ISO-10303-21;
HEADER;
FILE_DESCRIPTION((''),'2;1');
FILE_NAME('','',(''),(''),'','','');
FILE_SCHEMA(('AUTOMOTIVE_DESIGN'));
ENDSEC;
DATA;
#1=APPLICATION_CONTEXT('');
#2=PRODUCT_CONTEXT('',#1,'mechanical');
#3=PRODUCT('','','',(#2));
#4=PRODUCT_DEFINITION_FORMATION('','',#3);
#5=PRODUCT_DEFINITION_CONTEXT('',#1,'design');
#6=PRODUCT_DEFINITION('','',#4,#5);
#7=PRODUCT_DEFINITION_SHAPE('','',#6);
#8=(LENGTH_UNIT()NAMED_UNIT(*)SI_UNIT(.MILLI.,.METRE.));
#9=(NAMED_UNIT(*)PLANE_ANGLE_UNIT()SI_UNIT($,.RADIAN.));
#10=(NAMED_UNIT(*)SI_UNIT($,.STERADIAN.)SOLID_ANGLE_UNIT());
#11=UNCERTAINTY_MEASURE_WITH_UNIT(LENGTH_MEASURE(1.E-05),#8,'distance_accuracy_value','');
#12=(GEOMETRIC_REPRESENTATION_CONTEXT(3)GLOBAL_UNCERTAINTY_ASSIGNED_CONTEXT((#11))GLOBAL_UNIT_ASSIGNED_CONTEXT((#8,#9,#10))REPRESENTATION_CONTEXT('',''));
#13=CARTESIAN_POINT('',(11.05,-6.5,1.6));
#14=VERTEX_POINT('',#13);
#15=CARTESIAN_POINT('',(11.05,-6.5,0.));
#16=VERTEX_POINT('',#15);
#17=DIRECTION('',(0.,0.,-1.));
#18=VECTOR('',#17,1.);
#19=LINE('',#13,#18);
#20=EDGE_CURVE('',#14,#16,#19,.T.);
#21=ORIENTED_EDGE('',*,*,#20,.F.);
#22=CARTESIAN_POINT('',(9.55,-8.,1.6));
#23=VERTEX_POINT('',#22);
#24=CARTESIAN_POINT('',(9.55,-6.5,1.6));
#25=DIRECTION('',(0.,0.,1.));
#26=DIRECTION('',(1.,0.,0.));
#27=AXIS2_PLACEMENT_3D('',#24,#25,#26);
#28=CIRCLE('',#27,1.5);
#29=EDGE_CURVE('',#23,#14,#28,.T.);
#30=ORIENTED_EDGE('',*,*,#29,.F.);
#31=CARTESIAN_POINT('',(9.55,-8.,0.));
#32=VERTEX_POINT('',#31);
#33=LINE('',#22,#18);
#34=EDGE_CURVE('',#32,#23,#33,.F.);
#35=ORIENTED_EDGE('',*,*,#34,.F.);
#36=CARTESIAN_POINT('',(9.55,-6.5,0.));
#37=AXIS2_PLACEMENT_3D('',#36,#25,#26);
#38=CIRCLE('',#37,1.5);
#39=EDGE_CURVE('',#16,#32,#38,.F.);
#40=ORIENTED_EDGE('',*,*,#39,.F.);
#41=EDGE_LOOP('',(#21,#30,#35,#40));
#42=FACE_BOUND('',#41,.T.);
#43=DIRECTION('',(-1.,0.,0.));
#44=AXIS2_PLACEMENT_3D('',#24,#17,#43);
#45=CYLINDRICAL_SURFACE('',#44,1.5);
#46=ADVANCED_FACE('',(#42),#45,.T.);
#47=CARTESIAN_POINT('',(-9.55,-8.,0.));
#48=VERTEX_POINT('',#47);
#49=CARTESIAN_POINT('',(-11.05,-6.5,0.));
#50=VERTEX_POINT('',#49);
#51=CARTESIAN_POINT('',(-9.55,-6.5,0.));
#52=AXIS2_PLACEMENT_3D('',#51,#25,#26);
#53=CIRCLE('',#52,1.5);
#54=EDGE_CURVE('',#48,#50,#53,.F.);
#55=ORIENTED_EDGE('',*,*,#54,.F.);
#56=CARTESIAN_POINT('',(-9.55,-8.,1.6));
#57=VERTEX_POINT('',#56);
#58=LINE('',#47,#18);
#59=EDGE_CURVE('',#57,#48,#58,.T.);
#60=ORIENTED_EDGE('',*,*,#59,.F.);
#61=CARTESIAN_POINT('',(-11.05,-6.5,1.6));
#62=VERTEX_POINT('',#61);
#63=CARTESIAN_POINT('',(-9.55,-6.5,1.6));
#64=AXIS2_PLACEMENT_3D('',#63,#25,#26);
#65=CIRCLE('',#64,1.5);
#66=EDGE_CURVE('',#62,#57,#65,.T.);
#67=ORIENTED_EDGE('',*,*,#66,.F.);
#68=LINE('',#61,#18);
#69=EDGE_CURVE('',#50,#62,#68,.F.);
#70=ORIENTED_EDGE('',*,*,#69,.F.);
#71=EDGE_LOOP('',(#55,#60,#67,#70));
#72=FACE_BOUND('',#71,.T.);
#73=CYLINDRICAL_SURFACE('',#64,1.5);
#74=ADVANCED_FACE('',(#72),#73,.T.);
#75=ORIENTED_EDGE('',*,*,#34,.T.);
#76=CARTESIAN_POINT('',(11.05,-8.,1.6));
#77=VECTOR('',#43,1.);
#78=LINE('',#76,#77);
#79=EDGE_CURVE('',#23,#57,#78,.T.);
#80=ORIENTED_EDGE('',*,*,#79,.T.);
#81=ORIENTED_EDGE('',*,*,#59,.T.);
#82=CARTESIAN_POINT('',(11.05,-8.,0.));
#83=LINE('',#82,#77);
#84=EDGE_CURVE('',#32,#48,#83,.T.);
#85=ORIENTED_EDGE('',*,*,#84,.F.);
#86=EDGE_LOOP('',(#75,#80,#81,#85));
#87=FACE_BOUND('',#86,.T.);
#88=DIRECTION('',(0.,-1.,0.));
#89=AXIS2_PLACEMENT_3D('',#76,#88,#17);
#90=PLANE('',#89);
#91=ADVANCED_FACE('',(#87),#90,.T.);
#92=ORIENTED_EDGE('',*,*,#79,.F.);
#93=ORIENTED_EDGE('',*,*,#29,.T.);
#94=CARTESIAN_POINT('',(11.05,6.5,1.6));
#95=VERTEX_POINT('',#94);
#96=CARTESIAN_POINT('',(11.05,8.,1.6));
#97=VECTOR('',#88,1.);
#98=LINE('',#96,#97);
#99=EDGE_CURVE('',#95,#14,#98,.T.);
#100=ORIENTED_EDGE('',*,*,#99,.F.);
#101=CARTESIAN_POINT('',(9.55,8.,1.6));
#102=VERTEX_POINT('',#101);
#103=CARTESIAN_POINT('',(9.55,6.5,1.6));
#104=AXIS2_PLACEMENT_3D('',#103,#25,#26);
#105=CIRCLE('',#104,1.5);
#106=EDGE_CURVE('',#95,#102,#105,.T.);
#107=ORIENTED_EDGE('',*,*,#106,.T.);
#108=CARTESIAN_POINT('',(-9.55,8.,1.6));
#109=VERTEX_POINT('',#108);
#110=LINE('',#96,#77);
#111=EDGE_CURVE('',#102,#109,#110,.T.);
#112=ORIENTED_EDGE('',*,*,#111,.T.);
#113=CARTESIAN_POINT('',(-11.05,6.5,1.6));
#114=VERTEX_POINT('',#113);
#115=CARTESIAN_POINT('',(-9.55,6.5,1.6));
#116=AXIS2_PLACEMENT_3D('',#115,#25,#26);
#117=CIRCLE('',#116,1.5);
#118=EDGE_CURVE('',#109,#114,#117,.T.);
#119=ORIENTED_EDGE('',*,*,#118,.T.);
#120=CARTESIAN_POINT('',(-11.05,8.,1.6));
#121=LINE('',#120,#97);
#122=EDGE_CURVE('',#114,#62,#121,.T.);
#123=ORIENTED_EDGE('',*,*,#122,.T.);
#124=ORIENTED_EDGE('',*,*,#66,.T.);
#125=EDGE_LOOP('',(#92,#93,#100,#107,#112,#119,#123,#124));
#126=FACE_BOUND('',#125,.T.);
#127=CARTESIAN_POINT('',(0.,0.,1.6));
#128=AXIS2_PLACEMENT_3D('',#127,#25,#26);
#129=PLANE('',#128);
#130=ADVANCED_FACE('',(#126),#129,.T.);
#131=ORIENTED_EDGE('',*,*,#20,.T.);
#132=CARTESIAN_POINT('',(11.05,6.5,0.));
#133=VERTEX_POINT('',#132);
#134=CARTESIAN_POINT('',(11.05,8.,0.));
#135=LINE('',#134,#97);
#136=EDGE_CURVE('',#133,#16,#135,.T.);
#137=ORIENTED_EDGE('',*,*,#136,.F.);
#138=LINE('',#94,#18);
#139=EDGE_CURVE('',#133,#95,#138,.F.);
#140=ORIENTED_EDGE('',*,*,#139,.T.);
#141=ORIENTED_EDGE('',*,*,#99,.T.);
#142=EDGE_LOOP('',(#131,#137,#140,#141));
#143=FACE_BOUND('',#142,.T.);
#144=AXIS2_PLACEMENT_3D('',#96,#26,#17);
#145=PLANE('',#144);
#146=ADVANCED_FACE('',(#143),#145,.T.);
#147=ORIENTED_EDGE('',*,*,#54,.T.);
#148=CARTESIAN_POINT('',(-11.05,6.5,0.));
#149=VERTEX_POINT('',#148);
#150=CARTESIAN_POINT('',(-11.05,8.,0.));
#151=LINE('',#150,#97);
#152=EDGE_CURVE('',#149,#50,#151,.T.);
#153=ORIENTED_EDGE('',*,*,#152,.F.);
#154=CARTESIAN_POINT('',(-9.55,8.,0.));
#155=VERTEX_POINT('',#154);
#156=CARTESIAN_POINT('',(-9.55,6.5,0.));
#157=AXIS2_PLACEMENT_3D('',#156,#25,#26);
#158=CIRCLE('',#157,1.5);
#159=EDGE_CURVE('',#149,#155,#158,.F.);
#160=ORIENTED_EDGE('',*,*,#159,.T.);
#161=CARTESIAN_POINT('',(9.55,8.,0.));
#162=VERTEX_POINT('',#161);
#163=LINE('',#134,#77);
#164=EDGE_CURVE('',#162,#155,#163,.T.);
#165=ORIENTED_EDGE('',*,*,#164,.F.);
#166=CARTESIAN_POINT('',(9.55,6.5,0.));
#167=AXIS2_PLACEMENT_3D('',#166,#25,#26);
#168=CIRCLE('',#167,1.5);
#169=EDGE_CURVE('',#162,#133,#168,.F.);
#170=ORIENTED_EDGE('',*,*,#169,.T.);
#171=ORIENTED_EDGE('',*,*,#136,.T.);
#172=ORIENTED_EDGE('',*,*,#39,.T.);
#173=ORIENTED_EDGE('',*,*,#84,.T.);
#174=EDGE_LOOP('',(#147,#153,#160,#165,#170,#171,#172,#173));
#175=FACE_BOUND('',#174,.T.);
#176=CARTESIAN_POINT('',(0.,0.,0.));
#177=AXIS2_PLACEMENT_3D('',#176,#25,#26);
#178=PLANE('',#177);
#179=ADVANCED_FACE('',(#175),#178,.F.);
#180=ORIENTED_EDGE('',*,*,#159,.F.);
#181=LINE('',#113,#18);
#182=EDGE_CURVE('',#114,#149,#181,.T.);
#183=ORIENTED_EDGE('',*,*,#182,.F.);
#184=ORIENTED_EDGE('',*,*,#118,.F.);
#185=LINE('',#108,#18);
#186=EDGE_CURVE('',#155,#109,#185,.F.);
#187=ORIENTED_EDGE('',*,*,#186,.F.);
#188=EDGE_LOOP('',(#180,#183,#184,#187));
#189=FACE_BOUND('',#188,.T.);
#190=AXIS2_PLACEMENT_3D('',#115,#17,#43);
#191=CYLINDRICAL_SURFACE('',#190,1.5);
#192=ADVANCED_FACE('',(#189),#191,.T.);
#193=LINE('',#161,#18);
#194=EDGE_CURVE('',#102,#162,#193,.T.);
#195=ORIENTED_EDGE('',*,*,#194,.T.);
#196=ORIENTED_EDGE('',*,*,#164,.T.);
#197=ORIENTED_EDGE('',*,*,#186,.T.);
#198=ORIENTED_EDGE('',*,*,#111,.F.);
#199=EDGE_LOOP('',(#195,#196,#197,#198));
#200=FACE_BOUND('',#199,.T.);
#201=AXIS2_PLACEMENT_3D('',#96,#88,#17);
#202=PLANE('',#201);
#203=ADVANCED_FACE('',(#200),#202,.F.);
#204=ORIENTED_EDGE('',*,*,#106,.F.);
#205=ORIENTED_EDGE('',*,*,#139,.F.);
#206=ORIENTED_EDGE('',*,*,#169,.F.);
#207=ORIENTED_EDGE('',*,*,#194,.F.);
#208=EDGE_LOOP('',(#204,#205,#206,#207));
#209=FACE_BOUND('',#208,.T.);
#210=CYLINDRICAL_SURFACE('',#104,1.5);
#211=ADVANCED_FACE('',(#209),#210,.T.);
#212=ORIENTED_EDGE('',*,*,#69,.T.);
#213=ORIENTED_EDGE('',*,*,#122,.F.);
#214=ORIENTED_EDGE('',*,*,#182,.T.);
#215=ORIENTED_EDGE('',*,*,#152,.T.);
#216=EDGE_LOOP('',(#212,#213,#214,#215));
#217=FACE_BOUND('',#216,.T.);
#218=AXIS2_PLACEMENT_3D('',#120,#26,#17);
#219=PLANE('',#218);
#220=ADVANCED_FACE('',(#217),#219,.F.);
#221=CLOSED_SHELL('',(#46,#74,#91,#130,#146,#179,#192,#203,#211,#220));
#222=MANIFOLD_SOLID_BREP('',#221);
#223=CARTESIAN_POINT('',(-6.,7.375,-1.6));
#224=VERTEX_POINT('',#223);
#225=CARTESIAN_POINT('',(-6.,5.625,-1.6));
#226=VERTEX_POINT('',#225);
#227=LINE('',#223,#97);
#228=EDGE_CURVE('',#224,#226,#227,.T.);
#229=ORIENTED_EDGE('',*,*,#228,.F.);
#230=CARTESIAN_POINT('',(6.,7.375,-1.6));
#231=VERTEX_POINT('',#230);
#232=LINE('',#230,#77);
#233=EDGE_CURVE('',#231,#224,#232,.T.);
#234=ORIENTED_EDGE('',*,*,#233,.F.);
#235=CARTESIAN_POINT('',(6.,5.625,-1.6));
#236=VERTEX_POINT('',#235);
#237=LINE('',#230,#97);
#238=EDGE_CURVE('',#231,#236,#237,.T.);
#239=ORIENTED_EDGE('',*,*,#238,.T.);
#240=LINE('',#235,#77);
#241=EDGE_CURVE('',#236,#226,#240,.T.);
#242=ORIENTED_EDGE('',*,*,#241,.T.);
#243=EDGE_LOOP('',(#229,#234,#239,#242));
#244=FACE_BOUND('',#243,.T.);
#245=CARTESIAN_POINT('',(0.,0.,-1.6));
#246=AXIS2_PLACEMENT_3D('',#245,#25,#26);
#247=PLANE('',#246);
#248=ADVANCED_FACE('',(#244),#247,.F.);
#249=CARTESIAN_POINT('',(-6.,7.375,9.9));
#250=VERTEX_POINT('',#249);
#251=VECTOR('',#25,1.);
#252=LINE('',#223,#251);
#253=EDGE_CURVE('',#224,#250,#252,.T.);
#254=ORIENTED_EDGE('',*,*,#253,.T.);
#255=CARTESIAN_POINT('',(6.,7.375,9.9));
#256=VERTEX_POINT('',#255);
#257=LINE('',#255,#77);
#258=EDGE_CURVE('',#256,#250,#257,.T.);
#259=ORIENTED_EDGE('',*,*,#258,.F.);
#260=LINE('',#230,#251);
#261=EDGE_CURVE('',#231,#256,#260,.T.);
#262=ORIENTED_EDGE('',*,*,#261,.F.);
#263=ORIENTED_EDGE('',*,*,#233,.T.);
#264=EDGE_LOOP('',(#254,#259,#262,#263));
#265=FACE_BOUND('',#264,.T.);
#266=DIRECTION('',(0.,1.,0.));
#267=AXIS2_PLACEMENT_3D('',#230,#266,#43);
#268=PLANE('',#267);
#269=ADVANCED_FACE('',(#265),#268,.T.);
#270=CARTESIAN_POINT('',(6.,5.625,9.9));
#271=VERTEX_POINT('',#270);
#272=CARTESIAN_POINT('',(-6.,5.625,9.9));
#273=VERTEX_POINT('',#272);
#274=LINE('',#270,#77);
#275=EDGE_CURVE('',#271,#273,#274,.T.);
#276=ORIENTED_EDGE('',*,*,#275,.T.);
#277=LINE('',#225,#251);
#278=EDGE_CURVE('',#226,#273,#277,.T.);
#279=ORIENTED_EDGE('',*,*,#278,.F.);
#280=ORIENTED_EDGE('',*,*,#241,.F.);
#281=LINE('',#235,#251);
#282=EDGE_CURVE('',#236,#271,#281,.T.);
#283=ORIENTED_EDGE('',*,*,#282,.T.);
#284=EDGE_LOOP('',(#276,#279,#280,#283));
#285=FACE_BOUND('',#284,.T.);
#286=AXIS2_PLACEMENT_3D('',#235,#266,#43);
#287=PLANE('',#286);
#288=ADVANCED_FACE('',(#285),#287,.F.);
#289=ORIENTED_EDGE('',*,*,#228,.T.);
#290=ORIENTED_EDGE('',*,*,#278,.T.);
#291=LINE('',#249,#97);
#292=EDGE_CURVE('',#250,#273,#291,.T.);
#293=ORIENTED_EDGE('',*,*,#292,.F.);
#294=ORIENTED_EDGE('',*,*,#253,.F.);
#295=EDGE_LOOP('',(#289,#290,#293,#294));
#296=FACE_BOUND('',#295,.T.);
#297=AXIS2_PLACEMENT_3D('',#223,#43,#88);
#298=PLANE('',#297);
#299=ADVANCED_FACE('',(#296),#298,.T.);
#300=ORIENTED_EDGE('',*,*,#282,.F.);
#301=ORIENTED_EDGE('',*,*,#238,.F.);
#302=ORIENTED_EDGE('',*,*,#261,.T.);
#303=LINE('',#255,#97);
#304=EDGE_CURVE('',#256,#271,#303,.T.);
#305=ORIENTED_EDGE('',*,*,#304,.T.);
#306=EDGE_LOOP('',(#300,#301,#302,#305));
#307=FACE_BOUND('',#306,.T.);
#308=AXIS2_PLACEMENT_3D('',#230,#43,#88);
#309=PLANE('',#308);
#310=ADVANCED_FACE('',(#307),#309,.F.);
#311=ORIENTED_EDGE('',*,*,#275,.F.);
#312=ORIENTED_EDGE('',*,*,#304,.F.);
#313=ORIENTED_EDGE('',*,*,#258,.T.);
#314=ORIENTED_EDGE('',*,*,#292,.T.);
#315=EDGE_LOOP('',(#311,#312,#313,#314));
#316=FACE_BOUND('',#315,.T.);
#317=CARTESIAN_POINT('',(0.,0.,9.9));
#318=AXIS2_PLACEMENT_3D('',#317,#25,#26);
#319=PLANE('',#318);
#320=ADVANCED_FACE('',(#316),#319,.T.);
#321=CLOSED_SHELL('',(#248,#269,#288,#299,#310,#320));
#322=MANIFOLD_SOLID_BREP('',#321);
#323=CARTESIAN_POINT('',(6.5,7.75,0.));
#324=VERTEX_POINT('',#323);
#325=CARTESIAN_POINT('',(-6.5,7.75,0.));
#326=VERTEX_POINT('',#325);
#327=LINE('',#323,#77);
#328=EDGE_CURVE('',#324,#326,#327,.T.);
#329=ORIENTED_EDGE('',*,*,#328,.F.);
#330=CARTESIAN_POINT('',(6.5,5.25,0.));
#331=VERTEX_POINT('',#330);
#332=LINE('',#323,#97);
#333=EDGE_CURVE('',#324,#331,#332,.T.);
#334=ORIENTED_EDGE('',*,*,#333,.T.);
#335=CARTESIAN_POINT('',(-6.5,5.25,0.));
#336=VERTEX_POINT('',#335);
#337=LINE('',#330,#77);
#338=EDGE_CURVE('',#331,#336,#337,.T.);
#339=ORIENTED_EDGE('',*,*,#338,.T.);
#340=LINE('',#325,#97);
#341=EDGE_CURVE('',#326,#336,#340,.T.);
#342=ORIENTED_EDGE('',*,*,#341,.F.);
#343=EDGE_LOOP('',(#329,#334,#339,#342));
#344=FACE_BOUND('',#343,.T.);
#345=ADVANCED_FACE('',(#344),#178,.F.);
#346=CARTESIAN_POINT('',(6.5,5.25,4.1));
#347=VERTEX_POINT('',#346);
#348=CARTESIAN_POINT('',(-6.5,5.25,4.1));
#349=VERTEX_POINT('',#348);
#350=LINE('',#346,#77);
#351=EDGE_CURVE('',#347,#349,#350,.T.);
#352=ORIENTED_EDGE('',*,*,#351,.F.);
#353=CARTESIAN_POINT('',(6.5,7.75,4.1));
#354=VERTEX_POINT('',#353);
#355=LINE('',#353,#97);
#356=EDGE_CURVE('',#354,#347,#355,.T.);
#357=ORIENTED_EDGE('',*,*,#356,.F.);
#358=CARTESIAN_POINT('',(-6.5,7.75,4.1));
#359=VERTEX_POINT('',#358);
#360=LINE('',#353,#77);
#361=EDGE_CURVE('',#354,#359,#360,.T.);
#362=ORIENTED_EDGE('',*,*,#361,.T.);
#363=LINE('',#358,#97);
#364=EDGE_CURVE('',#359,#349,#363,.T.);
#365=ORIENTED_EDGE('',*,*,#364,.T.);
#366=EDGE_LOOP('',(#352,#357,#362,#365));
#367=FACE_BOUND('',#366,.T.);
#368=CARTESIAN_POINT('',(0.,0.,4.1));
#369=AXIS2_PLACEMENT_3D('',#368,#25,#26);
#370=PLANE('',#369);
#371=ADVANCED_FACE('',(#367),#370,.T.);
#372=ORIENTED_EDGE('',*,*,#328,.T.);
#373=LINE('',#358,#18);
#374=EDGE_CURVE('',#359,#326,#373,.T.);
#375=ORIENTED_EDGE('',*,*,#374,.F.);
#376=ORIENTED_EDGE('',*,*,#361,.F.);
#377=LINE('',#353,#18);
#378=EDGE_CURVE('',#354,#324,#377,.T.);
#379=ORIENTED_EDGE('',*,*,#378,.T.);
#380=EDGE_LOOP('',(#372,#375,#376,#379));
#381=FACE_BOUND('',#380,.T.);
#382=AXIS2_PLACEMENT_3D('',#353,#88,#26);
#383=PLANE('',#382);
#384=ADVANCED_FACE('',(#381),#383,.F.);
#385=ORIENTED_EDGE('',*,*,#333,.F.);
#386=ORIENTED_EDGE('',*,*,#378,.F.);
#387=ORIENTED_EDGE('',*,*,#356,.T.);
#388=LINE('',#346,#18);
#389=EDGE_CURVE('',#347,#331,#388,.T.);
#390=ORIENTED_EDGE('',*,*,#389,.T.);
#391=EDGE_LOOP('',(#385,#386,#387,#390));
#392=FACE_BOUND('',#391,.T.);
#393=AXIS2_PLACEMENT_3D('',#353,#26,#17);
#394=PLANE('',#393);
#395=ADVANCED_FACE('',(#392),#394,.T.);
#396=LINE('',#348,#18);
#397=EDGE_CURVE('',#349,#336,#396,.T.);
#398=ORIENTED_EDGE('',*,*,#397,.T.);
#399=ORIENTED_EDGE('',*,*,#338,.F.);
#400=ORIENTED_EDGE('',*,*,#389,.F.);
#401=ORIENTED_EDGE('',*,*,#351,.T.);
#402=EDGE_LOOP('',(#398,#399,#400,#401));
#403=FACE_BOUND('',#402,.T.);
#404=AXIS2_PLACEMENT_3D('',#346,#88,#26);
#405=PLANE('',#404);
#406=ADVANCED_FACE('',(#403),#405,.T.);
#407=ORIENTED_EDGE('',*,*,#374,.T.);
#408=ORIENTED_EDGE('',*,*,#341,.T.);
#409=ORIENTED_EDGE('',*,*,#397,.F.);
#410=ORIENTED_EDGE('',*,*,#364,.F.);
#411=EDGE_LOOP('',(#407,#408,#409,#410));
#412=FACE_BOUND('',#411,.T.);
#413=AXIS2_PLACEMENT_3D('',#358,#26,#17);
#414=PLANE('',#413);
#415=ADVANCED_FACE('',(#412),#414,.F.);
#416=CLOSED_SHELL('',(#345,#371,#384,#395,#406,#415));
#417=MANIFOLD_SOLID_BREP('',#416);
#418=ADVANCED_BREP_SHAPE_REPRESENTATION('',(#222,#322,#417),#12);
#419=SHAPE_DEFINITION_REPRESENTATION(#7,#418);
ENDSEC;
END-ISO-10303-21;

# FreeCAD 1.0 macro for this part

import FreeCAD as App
import Part
import Sketcher
Q = App.Units.Quantity


def edges_at(feature, points):
    """Names of the edges that pass closest to the given points."""
    edges = feature.Shape.Edges
    near = lambda p: min(range(len(edges)), key=lambda i: edges[i].distToShape(Part.Vertex(*p))[0])
    return sorted({f"Edge{near(p) + 1}" for p in points})

doc = App.newDocument("Part")
params = doc.addObject("Spreadsheet::Sheet", "Params")
for row, (alias, value) in enumerate([
    ("sketch1_height", "16 mm"),
    ("sketch1_width", "22.1 mm"),
    ("pad1_length", "1.6 mm"),
    ("fillet_radius", "1.5 mm"),
    ("sketch2_width", "12 mm"),
    ("sketch2_height", "1.75 mm"),
    ("pad2_length", "9.9 mm"),
    ("pad2_length2", "1.6 mm"),
    ("sketch3_width", "13 mm"),
    ("sketch3_height", "2.5 mm"),
    ("pad3_length", "4.1 mm"),
], start=1):
    params.set(f"A{row}", alias)
    params.set(f"B{row}", "=" + value)
    params.setAlias(f"B{row}", alias)

body = doc.addObject("PartDesign::Body", "Body")

# Sketch on XY plane
sketch1 = body.newObject("Sketcher::SketchObject", "Sketch")
sketch1.AttachmentSupport = (doc.getObject("XY_Plane"), [""])
sketch1.MapMode = "FlatFace"
sketch1.addGeometry([
    Part.LineSegment(App.Vector(-11, 8, 0), App.Vector(-11, -8, 0)),
    Part.LineSegment(App.Vector(-11, -8, 0), App.Vector(11, -8, 0)),
    Part.LineSegment(App.Vector(11, -8, 0), App.Vector(11, 8, 0)),
    Part.LineSegment(App.Vector(11, 8, 0), App.Vector(-11, 8, 0)),
], False)
sketch1.addConstraint([
    Sketcher.Constraint("Coincident", 0, 2, 1, 1),
    Sketcher.Constraint("Coincident", 1, 2, 2, 1),
    Sketcher.Constraint("Coincident", 2, 2, 3, 1),
    Sketcher.Constraint("Coincident", 3, 2, 0, 1),
    Sketcher.Constraint("Vertical", 0),
    Sketcher.Constraint("Horizontal", 1),
    Sketcher.Constraint("Vertical", 2),
    Sketcher.Constraint("Horizontal", 3),
    Sketcher.Constraint("Symmetric", 0, 2, 2, 2, -1, 1),
    Sketcher.Constraint("DistanceY", 0, 2, 0, 1, Q("16 mm")),
    Sketcher.Constraint("DistanceX", 1, 1, 1, 2, Q("22.1 mm")),
])
sketch1.setExpression("Constraints[9]", "Params.sketch1_height")
sketch1.setExpression("Constraints[10]", "Params.sketch1_width")
pad1 = body.newObject("PartDesign::Pad", "Pad")
pad1.Profile = sketch1
pad1.setExpression("Length", "Params.pad1_length")
doc.recompute()

fillet = body.newObject("PartDesign::Fillet", "Fillet")
fillet.Base = (pad1, edges_at(pad1, [
    (11.05, 8, 0.8),
    (11.05, -8, 0.8),
    (-11.05, -8, 0.8),
    (-11.05, 8, 0.8),
]))
fillet.setExpression("Radius", "Params.fillet_radius")
body2 = doc.addObject("PartDesign::Body", "Body001")

# Sketch on XY plane
sketch2 = body2.newObject("Sketcher::SketchObject", "Sketch001")
sketch2.AttachmentSupport = (doc.getObject("XY_Plane001"), [""])
sketch2.MapMode = "FlatFace"
sketch2.addGeometry([
    Part.LineSegment(App.Vector(-6, 7.4, 0), App.Vector(-6, 5.6, 0)),
    Part.LineSegment(App.Vector(-6, 5.6, 0), App.Vector(6, 5.6, 0)),
    Part.LineSegment(App.Vector(6, 5.6, 0), App.Vector(6, 7.4, 0)),
    Part.LineSegment(App.Vector(6, 7.4, 0), App.Vector(-6, 7.4, 0)),
], False)
sketch2.addConstraint([
    Sketcher.Constraint("Coincident", 0, 2, 1, 1),
    Sketcher.Constraint("Coincident", 1, 2, 2, 1),
    Sketcher.Constraint("Coincident", 2, 2, 3, 1),
    Sketcher.Constraint("Coincident", 3, 2, 0, 1),
    Sketcher.Constraint("Vertical", 0),
    Sketcher.Constraint("Horizontal", 1),
    Sketcher.Constraint("Vertical", 2),
    Sketcher.Constraint("Horizontal", 3),
    Sketcher.Constraint("DistanceX", 1, 1, 1, 2, Q("12 mm")),
    Sketcher.Constraint("DistanceX", 0, 2, -1, 1, Q("6 mm")),
    Sketcher.Constraint("DistanceY", 0, 2, 0, 1, Q("1.75 mm")),
    Sketcher.Constraint("DistanceY", -1, 1, 0, 2, Q("5.625 mm")),
])
sketch2.setExpression("Constraints[8]", "Params.sketch2_width")
sketch2.setExpression("Constraints[10]", "Params.sketch2_height")
pad2 = body2.newObject("PartDesign::Pad", "Pad001")
pad2.Profile = sketch2
pad2.Type = "TwoLengths"
pad2.setExpression("Length", "Params.pad2_length")
pad2.setExpression("Length2", "Params.pad2_length2")
body3 = doc.addObject("PartDesign::Body", "Body002")

# Sketch on XY plane
sketch3 = body3.newObject("Sketcher::SketchObject", "Sketch002")
sketch3.AttachmentSupport = (doc.getObject("XY_Plane002"), [""])
sketch3.MapMode = "FlatFace"
sketch3.addGeometry([
    Part.LineSegment(App.Vector(-6.5, 7.8, 0), App.Vector(-6.5, 5.2, 0)),
    Part.LineSegment(App.Vector(-6.5, 5.2, 0), App.Vector(6.5, 5.2, 0)),
    Part.LineSegment(App.Vector(6.5, 5.2, 0), App.Vector(6.5, 7.8, 0)),
    Part.LineSegment(App.Vector(6.5, 7.8, 0), App.Vector(-6.5, 7.8, 0)),
], False)
sketch3.addConstraint([
    Sketcher.Constraint("Coincident", 0, 2, 1, 1),
    Sketcher.Constraint("Coincident", 1, 2, 2, 1),
    Sketcher.Constraint("Coincident", 2, 2, 3, 1),
    Sketcher.Constraint("Coincident", 3, 2, 0, 1),
    Sketcher.Constraint("Vertical", 0),
    Sketcher.Constraint("Horizontal", 1),
    Sketcher.Constraint("Vertical", 2),
    Sketcher.Constraint("Horizontal", 3),
    Sketcher.Constraint("DistanceX", 1, 1, 1, 2, Q("13 mm")),
    Sketcher.Constraint("DistanceY", 0, 2, 0, 1, Q("2.5 mm")),
    Sketcher.Constraint("DistanceX", 0, 2, -1, 1, Q("6.5 mm")),
    Sketcher.Constraint("DistanceY", -1, 1, 0, 2, Q("5.25 mm")),
])
sketch3.setExpression("Constraints[8]", "Params.sketch3_width")
sketch3.setExpression("Constraints[9]", "Params.sketch3_height")
pad3 = body3.newObject("PartDesign::Pad", "Pad002")
pad3.Profile = sketch3
pad3.setExpression("Length", "Params.pad3_length")

doc.recompute()
